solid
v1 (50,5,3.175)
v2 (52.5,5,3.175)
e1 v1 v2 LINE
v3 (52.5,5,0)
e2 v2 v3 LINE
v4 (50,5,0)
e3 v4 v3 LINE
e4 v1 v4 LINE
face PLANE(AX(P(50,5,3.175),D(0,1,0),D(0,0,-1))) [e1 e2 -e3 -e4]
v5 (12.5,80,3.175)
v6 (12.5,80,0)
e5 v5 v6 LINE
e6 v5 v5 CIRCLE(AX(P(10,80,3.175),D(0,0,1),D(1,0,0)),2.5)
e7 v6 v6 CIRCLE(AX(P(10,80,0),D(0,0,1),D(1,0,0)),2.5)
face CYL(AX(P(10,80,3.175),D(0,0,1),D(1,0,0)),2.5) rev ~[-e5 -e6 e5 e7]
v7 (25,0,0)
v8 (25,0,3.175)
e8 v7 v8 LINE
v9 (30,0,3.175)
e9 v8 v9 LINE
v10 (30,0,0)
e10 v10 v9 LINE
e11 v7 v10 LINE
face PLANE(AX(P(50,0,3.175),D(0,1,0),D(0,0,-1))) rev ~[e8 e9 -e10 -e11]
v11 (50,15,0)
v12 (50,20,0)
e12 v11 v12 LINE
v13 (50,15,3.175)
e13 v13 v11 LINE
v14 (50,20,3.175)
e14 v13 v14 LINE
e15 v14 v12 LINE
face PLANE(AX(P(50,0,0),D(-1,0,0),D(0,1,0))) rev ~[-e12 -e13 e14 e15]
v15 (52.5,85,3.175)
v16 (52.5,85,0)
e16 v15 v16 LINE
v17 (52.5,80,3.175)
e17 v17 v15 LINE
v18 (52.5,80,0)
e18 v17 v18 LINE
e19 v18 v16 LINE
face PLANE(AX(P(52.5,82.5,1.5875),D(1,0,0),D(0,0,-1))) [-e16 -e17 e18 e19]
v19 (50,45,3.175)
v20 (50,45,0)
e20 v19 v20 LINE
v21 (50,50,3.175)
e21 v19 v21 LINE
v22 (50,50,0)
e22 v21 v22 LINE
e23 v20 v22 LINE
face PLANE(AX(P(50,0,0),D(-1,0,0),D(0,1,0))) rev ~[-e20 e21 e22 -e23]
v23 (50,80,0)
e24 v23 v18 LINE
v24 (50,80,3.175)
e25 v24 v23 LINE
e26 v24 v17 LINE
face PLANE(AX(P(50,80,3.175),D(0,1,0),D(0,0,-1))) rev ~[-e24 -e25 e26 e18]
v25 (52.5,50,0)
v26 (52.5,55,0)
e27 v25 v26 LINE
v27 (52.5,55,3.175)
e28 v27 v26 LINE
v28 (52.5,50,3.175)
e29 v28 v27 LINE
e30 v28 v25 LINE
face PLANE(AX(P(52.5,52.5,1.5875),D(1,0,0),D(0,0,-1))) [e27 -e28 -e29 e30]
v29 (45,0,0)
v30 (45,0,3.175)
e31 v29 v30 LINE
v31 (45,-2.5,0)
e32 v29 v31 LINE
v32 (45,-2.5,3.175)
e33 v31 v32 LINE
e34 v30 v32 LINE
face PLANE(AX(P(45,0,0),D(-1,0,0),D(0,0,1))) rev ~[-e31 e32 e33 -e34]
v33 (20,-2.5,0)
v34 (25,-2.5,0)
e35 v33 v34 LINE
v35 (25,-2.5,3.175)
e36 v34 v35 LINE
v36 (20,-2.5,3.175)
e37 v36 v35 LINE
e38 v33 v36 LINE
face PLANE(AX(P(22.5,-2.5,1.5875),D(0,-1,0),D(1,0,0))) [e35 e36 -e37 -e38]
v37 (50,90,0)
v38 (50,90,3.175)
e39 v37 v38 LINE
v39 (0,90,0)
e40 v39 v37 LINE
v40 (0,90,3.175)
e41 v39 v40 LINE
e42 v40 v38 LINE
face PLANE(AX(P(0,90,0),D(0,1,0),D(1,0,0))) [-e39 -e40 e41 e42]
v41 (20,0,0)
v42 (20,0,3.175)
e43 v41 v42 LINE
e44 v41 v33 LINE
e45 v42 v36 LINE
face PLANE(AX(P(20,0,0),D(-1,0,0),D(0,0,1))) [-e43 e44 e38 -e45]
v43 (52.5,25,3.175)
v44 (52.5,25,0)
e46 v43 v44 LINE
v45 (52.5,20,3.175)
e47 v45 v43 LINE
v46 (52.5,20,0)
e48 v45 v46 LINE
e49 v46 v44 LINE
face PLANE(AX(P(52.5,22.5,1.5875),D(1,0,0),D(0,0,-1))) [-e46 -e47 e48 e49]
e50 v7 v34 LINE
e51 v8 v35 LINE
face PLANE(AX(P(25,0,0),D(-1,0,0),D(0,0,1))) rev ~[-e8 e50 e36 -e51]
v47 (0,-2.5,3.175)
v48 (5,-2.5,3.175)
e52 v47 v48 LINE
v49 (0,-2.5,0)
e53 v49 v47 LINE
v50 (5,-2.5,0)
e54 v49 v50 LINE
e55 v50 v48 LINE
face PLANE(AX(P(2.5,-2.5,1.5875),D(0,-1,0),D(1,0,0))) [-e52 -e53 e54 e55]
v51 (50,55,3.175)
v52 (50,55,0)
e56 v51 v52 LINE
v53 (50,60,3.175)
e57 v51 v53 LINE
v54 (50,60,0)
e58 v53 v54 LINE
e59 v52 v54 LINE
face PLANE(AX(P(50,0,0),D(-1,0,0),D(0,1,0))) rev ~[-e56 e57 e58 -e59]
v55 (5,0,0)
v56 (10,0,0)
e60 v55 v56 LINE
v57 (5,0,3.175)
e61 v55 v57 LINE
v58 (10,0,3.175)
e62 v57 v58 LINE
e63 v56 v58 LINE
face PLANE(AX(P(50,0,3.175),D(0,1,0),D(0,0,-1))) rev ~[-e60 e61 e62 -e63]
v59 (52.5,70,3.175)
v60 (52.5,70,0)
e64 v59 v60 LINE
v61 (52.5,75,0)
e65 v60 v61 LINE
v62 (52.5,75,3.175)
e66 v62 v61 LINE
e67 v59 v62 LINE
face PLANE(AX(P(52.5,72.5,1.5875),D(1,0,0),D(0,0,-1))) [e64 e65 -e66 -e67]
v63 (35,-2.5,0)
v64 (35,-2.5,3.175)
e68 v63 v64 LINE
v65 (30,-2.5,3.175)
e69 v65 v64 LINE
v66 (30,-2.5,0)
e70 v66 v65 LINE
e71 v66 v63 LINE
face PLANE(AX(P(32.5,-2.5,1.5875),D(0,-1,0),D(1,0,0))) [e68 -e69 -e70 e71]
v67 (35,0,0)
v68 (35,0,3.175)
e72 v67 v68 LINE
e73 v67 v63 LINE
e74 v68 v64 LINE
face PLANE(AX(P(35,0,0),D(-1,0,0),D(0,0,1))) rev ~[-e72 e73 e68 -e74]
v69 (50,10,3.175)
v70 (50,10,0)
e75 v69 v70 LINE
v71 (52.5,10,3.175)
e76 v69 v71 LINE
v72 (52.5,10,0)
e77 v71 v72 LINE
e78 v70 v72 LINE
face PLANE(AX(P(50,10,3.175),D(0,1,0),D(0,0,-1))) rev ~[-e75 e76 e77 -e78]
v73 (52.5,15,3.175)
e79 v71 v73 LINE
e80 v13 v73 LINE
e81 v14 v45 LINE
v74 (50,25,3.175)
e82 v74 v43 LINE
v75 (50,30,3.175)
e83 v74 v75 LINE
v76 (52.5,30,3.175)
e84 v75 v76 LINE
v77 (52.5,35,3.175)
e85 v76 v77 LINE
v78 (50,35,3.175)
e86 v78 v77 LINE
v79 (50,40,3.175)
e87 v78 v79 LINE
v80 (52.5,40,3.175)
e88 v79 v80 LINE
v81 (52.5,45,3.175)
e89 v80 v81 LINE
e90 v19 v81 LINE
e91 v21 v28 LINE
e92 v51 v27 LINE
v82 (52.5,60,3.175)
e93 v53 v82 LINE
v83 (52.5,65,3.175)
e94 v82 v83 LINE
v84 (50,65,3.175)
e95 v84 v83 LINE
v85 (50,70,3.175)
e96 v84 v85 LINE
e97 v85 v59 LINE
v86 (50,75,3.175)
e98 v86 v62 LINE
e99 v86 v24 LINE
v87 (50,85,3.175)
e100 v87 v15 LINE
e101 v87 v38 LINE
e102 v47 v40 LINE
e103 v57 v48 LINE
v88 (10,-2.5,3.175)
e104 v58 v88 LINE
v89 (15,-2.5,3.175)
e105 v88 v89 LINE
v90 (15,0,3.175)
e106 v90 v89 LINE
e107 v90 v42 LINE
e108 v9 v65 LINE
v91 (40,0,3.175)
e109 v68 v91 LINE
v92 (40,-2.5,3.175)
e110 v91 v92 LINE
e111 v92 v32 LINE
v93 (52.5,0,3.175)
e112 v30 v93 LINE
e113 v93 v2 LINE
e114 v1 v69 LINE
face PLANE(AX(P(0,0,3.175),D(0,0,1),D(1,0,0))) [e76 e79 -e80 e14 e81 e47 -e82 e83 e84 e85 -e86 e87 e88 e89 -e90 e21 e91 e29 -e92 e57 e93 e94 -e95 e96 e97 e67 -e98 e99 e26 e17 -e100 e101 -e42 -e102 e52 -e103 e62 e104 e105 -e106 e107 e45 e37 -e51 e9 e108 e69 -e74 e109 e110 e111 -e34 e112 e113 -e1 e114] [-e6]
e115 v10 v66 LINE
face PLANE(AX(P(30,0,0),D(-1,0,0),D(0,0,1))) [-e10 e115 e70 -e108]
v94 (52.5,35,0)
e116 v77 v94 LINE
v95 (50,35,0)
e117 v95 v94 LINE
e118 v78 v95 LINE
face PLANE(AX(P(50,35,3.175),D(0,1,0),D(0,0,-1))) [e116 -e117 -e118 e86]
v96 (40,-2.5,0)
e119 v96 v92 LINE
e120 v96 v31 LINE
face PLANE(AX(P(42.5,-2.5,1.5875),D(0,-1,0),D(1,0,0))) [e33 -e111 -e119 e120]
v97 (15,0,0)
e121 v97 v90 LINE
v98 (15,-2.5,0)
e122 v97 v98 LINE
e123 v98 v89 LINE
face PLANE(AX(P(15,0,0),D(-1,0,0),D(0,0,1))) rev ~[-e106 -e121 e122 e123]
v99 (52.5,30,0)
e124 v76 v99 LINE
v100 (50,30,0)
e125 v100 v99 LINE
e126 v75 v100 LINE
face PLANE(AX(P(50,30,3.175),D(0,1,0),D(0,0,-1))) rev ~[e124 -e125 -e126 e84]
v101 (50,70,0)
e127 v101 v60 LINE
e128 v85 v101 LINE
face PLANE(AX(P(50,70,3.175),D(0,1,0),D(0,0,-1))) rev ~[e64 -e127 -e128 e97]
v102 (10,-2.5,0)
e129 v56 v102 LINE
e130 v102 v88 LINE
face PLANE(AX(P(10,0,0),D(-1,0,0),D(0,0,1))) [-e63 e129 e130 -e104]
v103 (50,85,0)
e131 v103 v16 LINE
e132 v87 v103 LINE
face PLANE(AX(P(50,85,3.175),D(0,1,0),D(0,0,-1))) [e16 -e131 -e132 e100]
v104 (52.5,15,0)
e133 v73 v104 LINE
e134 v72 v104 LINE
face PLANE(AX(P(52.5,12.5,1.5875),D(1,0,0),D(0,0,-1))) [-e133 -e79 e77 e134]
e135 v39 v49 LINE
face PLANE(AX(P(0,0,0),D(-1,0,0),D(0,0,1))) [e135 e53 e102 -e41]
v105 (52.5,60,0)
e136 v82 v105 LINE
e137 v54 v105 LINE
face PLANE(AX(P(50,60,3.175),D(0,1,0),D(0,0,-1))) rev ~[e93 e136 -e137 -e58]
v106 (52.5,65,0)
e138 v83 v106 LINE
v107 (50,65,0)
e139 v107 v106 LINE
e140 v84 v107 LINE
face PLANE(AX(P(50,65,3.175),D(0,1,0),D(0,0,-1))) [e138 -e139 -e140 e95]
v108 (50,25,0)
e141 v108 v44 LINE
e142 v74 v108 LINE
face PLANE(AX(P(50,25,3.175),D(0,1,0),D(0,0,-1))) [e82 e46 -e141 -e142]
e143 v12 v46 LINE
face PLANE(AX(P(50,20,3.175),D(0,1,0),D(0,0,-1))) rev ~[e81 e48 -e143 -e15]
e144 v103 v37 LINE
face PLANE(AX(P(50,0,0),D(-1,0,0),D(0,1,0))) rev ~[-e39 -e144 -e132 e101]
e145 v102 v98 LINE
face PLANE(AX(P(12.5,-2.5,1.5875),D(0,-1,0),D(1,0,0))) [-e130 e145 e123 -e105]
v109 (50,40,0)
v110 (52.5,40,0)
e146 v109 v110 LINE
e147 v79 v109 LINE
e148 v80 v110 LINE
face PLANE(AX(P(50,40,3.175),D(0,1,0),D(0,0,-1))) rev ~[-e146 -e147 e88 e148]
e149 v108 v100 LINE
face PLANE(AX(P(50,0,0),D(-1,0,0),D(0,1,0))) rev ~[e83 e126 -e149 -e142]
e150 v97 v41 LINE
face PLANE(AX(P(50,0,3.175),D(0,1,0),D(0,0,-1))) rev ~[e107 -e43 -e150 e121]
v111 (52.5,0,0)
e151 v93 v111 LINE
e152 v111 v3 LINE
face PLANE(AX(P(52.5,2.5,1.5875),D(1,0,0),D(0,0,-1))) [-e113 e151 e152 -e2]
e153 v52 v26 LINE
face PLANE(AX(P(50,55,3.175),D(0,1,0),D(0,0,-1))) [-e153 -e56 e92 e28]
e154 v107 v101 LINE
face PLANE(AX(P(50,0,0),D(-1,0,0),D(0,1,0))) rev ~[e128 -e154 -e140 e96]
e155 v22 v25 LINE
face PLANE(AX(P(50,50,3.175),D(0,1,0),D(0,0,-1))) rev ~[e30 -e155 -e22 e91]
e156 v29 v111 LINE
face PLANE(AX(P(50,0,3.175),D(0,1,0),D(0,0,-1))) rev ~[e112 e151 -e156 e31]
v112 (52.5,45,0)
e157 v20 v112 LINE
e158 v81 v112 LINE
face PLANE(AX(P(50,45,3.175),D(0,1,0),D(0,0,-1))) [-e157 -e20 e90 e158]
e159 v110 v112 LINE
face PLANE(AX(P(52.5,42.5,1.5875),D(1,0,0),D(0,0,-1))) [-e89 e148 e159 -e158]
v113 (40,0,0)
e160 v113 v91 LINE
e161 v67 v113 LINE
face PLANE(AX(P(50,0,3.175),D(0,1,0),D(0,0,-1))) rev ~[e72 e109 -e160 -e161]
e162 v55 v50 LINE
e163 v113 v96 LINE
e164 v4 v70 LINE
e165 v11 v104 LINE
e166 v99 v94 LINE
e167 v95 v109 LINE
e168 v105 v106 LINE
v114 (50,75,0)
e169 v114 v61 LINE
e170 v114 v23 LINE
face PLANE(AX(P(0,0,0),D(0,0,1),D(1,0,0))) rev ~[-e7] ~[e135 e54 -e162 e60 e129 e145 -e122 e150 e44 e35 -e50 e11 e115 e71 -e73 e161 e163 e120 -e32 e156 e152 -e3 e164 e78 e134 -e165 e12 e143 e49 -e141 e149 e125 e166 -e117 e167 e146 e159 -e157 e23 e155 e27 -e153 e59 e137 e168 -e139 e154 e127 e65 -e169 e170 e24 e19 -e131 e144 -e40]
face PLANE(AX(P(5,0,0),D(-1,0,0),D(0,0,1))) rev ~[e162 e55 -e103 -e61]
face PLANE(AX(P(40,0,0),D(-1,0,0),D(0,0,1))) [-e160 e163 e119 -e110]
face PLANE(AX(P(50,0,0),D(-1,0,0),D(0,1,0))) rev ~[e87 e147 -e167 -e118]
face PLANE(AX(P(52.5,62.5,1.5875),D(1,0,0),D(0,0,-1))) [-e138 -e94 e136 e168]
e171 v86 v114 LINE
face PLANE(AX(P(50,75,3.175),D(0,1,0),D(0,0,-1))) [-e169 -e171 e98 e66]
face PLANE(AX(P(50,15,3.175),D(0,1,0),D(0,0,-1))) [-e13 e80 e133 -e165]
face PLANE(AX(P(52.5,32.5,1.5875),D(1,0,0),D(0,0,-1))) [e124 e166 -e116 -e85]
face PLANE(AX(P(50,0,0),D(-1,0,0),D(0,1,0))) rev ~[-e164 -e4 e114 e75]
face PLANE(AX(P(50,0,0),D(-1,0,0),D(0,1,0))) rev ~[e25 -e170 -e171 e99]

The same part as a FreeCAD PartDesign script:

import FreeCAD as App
import Part
import Sketcher
Q = App.Units.Quantity

doc = App.newDocument("Part")
body = doc.addObject("PartDesign::Body", "Body")

# Sketch on XY plane
sketch1 = body.newObject("Sketcher::SketchObject", "Sketch")
sketch1.AttachmentSupport = (doc.getObject("XY_Plane"), [""])
sketch1.MapMode = "FlatFace"
sketch1.addGeometry(Part.LineSegment(App.Vector(0, 90, 0), App.Vector(0, 0, 0)), False)
sketch1.addGeometry(Part.LineSegment(App.Vector(0, 0, 0), App.Vector(50, 0, 0)), False)
sketch1.addGeometry(Part.LineSegment(App.Vector(50, 0, 0), App.Vector(50, 90, 0)), False)
sketch1.addGeometry(Part.LineSegment(App.Vector(50, 90, 0), App.Vector(0, 90, 0)), False)
sketch1.addConstraint(Sketcher.Constraint("Coincident", 0, 2, 1, 1))
sketch1.addConstraint(Sketcher.Constraint("Coincident", 1, 2, 2, 1))
sketch1.addConstraint(Sketcher.Constraint("Coincident", 2, 2, 3, 1))
sketch1.addConstraint(Sketcher.Constraint("Coincident", 3, 2, 0, 1))
sketch1.addConstraint(Sketcher.Constraint("Vertical", 0))
sketch1.addConstraint(Sketcher.Constraint("Horizontal", 1))
sketch1.addConstraint(Sketcher.Constraint("Vertical", 2))
sketch1.addConstraint(Sketcher.Constraint("Horizontal", 3))
sketch1.addConstraint(Sketcher.Constraint("Coincident", 0, 2, -1, 1))
sketch1.addConstraint(Sketcher.Constraint("DistanceX", 1, 1, 1, 2, Q("50 mm")))
sketch1.addConstraint(Sketcher.Constraint("DistanceY", 0, 2, 0, 1, Q("90 mm")))
pad1 = body.newObject("PartDesign::Pad", "Pad")
pad1.Profile = sketch1
pad1.Length = 3.175

# Sketch on YZ plane
sketch2 = body.newObject("Sketcher::SketchObject", "Sketch001")
sketch2.AttachmentSupport = (doc.getObject("YZ_Plane"), [""])
sketch2.MapMode = "FlatFace"
sketch2.AttachmentOffset = App.Placement(App.Vector(0, 0, 50), App.Rotation())
sketch2.addGeometry(Part.LineSegment(App.Vector(5, 3.175, 0), App.Vector(0, 3.175, 0)), False)
sketch2.addGeometry(Part.LineSegment(App.Vector(0, 3.175, 0), App.Vector(0, 0, 0)), False)
sketch2.addGeometry(Part.LineSegment(App.Vector(0, 0, 0), App.Vector(5, 0, 0)), False)
sketch2.addGeometry(Part.LineSegment(App.Vector(5, 0, 0), App.Vector(5, 3.175, 0)), False)
sketch2.addConstraint(Sketcher.Constraint("Coincident", 0, 2, 1, 1))
sketch2.addConstraint(Sketcher.Constraint("Coincident", 1, 2, 2, 1))
sketch2.addConstraint(Sketcher.Constraint("Coincident", 2, 2, 3, 1))
sketch2.addConstraint(Sketcher.Constraint("Coincident", 3, 2, 0, 1))
sketch2.addConstraint(Sketcher.Constraint("Horizontal", 0))
sketch2.addConstraint(Sketcher.Constraint("Vertical", 1))
sketch2.addConstraint(Sketcher.Constraint("Horizontal", 2))
sketch2.addConstraint(Sketcher.Constraint("Vertical", 3))
sketch2.addConstraint(Sketcher.Constraint("Coincident", 1, 2, -1, 1))
sketch2.addConstraint(Sketcher.Constraint("DistanceX", 0, 2, 0, 1, Q("5 mm")))
sketch2.addConstraint(Sketcher.Constraint("DistanceY", 1, 2, 1, 1, Q("3.175 mm")))
pad2 = body.newObject("PartDesign::Pad", "Pad001")
pad2.Profile = sketch2
pad2.Length = 2.5
doc.recompute()

linearpattern = body.newObject("PartDesign::LinearPattern", "LinearPattern")
linearpattern.Originals = [pad2]
linearpattern.Direction = (doc.getObject("Y_Axis"), [""])
linearpattern.Mode = "offset"
linearpattern.Offset = 10
linearpattern.Occurrences = 9
body.Tip = linearpattern

# Sketch on XZ plane
sketch3 = body.newObject("Sketcher::SketchObject", "Sketch002")
sketch3.AttachmentSupport = (doc.getObject("XZ_Plane"), [""])
sketch3.MapMode = "FlatFace"
sketch3.addGeometry(Part.LineSegment(App.Vector(0, 3.175, 0), App.Vector(0, 0, 0)), False)
sketch3.addGeometry(Part.LineSegment(App.Vector(0, 0, 0), App.Vector(5, 0, 0)), False)
sketch3.addGeometry(Part.LineSegment(App.Vector(5, 0, 0), App.Vector(5, 3.175, 0)), False)
sketch3.addGeometry(Part.LineSegment(App.Vector(5, 3.175, 0), App.Vector(0, 3.175, 0)), False)
sketch3.addConstraint(Sketcher.Constraint("Coincident", 0, 2, 1, 1))
sketch3.addConstraint(Sketcher.Constraint("Coincident", 1, 2, 2, 1))
sketch3.addConstraint(Sketcher.Constraint("Coincident", 2, 2, 3, 1))
sketch3.addConstraint(Sketcher.Constraint("Coincident", 3, 2, 0, 1))
sketch3.addConstraint(Sketcher.Constraint("Vertical", 0))
sketch3.addConstraint(Sketcher.Constraint("Horizontal", 1))
sketch3.addConstraint(Sketcher.Constraint("Vertical", 2))
sketch3.addConstraint(Sketcher.Constraint("Horizontal", 3))
sketch3.addConstraint(Sketcher.Constraint("Coincident", 0, 2, -1, 1))
sketch3.addConstraint(Sketcher.Constraint("DistanceX", 1, 1, 1, 2, Q("5 mm")))
sketch3.addConstraint(Sketcher.Constraint("DistanceY", 0, 2, 0, 1, Q("3.175 mm")))
pad3 = body.newObject("PartDesign::Pad", "Pad002")
pad3.Profile = sketch3
pad3.Length = 2.5
doc.recompute()

linearpattern2 = body.newObject("PartDesign::LinearPattern", "LinearPattern001")
linearpattern2.Originals = [pad3]
linearpattern2.Direction = (doc.getObject("X_Axis"), [""])
linearpattern2.Mode = "offset"
linearpattern2.Offset = 10
linearpattern2.Occurrences = 5
body.Tip = linearpattern2

# Sketch on XY plane
sketch4 = body.newObject("Sketcher::SketchObject", "Sketch003")
sketch4.AttachmentSupport = (doc.getObject("XY_Plane"), [""])
sketch4.MapMode = "FlatFace"
sketch4.AttachmentOffset = App.Placement(App.Vector(0, 0, 3.175), App.Rotation())
sketch4.addGeometry(Part.Circle(App.Vector(10, 80, 0), App.Vector(0, 0, 1), 2.5), False)
sketch4.addConstraint(Sketcher.Constraint("Diameter", 0, Q("5 mm")))
sketch4.addConstraint(Sketcher.Constraint("DistanceX", -1, 1, 0, 3, Q("10 mm")))
sketch4.addConstraint(Sketcher.Constraint("DistanceY", -1, 1, 0, 3, Q("80 mm")))
pocket1 = body.newObject("PartDesign::Pocket", "Pocket")
pocket1.Profile = sketch4
pocket1.Length = 10

doc.recompute()
